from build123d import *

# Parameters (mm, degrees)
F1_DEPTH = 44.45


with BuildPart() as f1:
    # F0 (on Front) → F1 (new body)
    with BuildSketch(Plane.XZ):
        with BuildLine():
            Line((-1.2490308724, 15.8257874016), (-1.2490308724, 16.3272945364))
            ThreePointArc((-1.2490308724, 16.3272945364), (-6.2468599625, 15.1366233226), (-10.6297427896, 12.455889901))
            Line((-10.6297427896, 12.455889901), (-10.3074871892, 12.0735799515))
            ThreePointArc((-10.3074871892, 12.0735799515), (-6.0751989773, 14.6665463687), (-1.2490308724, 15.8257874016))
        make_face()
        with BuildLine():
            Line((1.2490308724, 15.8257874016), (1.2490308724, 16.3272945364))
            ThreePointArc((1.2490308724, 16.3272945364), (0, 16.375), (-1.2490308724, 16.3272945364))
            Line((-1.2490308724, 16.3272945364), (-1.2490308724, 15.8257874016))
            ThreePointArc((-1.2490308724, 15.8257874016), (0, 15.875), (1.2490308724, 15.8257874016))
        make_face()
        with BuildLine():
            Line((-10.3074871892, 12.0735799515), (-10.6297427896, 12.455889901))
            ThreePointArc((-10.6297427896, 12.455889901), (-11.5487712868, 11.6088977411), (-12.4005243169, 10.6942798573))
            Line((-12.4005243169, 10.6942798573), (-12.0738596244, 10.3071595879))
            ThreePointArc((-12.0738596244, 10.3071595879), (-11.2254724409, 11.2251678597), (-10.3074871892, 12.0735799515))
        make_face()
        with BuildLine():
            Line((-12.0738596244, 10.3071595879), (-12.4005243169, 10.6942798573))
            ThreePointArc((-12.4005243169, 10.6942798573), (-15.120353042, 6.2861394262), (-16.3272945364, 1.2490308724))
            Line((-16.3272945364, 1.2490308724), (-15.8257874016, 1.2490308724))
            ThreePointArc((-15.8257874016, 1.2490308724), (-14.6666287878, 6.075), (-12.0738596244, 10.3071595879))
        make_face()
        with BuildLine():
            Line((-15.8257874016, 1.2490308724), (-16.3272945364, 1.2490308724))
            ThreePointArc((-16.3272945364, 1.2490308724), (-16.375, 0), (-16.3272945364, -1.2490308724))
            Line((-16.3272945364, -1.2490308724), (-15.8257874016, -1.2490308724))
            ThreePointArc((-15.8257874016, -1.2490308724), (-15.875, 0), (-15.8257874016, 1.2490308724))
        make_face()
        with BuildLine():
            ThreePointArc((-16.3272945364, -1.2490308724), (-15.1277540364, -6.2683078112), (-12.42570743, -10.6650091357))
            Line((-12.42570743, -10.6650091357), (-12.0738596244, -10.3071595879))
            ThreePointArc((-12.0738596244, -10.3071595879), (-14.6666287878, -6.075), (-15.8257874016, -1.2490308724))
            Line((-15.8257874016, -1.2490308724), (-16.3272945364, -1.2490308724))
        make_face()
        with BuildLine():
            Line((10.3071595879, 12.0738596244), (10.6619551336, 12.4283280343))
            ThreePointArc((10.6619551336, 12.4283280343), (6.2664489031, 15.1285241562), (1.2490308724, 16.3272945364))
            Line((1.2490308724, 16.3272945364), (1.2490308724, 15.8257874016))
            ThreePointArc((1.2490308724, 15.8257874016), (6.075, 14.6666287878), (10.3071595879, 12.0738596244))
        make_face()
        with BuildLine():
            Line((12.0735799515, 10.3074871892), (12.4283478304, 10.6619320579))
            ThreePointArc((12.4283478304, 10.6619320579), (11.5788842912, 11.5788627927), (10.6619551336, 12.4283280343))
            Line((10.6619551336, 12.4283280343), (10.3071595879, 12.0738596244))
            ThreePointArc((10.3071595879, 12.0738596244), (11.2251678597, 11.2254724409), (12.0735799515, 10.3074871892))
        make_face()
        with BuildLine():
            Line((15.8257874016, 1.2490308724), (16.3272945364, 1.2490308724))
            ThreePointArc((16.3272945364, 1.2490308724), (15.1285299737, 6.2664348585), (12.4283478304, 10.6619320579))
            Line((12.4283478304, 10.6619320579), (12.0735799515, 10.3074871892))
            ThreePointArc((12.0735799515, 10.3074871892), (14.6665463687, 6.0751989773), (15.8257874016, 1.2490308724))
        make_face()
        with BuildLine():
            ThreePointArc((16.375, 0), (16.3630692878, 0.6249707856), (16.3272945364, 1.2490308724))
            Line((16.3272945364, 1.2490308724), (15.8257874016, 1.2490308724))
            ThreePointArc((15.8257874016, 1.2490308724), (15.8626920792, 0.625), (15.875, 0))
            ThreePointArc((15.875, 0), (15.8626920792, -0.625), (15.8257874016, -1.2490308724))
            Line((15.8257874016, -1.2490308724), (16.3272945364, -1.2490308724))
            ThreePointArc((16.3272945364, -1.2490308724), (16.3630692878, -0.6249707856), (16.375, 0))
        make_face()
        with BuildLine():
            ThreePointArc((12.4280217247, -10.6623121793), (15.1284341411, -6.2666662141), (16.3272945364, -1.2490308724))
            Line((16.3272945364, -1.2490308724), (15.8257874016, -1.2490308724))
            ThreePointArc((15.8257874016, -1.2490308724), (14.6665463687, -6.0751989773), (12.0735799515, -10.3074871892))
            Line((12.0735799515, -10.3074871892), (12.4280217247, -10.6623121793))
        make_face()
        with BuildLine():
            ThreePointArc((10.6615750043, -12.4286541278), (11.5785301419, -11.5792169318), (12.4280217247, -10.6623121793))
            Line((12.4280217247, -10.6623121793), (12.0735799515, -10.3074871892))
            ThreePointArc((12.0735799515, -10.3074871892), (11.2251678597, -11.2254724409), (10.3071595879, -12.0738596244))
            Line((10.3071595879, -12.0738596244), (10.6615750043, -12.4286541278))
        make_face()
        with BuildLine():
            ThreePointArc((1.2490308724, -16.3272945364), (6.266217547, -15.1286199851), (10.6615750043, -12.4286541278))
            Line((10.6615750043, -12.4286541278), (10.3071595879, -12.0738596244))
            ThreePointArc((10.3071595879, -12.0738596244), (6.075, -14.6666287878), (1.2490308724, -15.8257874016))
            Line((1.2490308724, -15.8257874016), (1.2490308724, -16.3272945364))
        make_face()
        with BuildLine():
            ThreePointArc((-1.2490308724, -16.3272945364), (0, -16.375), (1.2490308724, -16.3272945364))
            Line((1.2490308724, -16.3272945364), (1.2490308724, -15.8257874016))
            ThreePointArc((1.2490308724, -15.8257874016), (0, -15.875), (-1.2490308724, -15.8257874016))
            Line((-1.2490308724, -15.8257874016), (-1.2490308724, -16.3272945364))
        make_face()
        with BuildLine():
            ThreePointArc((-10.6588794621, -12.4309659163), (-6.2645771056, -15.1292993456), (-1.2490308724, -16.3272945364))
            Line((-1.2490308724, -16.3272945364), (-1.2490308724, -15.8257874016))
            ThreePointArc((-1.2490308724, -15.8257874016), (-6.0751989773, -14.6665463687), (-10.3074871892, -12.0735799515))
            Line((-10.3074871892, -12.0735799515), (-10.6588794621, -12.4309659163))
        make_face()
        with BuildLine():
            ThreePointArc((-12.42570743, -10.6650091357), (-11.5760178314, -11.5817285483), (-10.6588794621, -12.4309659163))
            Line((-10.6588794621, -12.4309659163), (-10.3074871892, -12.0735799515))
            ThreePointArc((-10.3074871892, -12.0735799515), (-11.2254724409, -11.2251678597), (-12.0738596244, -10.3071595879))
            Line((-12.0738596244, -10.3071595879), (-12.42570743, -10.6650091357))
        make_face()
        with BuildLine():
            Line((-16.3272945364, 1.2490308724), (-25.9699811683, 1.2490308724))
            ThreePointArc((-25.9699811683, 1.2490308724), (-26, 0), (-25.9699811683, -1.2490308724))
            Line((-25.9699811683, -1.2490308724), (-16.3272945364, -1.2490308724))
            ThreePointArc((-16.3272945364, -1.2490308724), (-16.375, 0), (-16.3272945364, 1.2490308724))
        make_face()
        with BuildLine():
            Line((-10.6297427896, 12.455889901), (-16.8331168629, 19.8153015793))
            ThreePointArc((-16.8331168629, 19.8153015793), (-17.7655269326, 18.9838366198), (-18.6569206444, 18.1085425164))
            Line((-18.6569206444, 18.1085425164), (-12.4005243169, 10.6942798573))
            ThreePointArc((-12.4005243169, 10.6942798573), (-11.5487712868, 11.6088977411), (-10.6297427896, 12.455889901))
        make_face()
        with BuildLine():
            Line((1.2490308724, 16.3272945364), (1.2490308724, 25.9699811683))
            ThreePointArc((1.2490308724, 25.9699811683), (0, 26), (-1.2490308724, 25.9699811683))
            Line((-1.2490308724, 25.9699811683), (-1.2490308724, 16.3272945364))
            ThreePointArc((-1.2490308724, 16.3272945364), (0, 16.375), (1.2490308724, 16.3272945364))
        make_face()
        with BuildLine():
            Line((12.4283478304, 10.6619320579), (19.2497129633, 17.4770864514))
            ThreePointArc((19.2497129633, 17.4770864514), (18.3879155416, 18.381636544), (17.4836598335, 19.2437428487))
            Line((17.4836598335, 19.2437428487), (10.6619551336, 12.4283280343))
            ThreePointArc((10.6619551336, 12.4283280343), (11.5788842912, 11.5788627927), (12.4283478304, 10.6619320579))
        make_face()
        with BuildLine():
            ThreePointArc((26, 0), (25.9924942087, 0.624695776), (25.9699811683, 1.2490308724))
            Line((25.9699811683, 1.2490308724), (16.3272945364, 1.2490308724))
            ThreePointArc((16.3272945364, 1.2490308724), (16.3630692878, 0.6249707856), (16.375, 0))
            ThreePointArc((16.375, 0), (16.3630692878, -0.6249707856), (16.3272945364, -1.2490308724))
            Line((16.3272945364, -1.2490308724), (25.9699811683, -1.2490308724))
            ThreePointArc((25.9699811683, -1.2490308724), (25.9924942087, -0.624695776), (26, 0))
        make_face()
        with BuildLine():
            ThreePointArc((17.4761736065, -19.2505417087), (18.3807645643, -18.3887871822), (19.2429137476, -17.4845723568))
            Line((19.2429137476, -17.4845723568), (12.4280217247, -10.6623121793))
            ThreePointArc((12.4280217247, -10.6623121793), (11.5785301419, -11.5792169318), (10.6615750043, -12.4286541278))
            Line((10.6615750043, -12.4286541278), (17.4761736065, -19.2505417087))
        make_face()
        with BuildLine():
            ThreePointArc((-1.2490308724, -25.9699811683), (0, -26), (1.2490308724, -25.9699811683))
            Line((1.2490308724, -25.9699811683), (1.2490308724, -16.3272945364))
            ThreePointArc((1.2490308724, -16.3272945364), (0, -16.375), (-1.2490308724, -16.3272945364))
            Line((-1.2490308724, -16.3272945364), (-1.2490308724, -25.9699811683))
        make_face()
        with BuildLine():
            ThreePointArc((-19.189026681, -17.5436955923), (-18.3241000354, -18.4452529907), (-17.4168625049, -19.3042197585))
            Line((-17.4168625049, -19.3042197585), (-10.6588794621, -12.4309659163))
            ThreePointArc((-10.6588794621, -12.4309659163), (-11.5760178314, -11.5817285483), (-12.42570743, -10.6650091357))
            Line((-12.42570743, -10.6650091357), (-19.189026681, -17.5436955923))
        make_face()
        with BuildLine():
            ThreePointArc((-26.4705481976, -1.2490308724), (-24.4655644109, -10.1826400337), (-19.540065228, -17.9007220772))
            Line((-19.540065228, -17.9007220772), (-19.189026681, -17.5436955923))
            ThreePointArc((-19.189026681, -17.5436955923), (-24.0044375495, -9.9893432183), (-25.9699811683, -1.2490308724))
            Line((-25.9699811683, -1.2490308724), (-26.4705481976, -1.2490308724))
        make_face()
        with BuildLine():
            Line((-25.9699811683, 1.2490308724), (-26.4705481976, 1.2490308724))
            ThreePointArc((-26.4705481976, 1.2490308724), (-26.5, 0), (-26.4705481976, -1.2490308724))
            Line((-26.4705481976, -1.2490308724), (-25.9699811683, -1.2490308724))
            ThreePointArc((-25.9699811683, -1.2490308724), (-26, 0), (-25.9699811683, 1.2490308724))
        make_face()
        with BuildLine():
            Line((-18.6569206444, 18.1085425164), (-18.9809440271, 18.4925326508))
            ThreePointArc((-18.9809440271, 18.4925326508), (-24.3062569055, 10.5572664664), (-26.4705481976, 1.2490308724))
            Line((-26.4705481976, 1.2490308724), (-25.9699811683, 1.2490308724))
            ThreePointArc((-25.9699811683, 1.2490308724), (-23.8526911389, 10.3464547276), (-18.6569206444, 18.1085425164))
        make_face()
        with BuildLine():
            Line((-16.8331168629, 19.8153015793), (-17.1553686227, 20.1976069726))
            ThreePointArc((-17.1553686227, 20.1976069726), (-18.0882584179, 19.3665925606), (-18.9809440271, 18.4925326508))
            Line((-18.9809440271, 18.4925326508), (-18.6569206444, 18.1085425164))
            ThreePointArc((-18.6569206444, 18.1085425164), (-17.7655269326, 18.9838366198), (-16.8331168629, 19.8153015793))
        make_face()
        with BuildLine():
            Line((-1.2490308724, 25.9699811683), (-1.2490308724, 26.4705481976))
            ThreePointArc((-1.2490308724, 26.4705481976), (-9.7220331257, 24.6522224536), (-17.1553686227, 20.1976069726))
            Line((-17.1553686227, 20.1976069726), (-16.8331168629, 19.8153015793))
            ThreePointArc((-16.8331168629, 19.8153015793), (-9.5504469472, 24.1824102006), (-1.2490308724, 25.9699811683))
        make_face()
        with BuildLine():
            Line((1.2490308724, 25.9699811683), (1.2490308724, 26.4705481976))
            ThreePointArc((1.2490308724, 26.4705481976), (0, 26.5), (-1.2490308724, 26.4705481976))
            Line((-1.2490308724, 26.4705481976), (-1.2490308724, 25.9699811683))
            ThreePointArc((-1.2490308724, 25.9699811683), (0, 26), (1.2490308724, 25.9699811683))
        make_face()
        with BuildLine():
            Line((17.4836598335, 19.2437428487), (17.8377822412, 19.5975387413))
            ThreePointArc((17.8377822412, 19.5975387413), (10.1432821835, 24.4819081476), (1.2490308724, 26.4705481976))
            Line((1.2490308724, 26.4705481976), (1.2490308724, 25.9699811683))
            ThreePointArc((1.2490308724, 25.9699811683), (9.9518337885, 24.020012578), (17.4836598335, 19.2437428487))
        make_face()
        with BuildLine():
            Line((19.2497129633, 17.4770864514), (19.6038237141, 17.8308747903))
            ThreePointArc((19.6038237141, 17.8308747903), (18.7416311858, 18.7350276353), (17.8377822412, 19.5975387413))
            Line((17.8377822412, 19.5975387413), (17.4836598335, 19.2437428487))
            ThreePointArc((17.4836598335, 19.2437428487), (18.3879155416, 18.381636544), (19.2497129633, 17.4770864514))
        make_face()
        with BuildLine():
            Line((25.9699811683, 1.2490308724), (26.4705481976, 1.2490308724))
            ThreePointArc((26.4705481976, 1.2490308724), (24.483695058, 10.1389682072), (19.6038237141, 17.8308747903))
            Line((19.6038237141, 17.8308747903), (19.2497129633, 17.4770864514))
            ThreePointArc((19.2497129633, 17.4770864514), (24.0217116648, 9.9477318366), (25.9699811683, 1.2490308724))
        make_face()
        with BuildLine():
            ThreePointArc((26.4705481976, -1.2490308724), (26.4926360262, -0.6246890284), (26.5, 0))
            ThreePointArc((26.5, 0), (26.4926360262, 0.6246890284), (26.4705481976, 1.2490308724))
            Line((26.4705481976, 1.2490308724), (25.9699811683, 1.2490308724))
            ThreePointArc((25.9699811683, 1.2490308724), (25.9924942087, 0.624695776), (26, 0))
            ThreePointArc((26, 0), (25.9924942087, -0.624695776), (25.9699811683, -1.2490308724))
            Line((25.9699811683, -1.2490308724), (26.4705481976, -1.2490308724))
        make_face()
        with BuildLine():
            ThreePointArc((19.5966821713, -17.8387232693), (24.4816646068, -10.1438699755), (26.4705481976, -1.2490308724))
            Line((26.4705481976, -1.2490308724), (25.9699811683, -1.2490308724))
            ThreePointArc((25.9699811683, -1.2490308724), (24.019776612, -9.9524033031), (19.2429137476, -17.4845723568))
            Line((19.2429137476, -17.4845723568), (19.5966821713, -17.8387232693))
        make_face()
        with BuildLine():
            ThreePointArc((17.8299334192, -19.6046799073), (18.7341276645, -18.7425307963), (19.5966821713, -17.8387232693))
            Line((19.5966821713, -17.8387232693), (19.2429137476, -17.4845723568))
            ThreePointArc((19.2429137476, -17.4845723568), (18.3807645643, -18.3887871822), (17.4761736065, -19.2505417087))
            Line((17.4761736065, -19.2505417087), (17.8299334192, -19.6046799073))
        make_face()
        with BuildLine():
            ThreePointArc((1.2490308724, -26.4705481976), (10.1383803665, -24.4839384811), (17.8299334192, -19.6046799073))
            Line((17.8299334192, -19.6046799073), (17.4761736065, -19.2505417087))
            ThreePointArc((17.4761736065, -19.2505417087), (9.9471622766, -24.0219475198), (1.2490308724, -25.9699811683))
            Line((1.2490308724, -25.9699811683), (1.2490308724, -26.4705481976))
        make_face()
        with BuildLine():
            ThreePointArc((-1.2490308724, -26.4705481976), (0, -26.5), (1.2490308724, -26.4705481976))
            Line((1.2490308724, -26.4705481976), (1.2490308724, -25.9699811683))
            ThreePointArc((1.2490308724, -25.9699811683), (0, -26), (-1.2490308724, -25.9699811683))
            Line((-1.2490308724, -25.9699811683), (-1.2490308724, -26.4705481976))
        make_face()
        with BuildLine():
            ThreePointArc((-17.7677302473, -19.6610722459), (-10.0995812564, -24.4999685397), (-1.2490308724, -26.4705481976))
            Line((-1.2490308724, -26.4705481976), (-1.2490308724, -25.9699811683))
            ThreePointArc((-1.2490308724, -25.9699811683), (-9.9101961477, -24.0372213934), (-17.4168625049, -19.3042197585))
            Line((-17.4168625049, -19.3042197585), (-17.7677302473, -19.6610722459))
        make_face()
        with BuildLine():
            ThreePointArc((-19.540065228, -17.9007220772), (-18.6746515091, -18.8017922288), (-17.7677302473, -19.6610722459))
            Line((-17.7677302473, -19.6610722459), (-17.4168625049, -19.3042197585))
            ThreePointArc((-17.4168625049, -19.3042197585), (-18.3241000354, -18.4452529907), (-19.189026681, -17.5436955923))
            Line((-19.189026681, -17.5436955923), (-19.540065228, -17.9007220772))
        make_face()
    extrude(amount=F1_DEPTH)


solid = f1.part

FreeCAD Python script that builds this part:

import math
import FreeCAD as App
import Part
import Sketcher
Q = App.Units.Quantity

doc = App.newDocument("Part")
body = doc.addObject("PartDesign::Body", "Body")

# Sketch on XZ plane
sketch1 = body.newObject("Sketcher::SketchObject", "Sketch")
sketch1.AttachmentSupport = (doc.getObject("XZ_Plane"), [""])
sketch1.MapMode = "FlatFace"
sketch1.addGeometry(Part.ArcOfCircle(Part.Circle(App.Vector(0, 0, 0), App.Vector(0, 0, 1), 26.5), math.radians(-177.298463), math.radians(-137.507092)), False)
sketch1.addGeometry(Part.ArcOfCircle(Part.Circle(App.Vector(0, 0, 0), App.Vector(0, 0, 1), 26.5), math.radians(-137.507092), math.radians(-132.104152)), False)
sketch1.addGeometry(Part.ArcOfCircle(Part.Circle(App.Vector(0, 0, 0), App.Vector(0, 0, 1), 26.5), math.radians(-132.104152), math.radians(-92.701537)), False)
sketch1.addGeometry(Part.ArcOfCircle(Part.Circle(App.Vector(0, 0, 0), App.Vector(0, 0, 1), 26.5), math.radians(-92.701537), math.radians(-87.298463)), False)
sketch1.addGeometry(Part.ArcOfCircle(Part.Circle(App.Vector(0, 0, 0), App.Vector(0, 0, 1), 26.5), math.radians(-87.298463), math.radians(-47.714317)), False)
sketch1.addGeometry(Part.ArcOfCircle(Part.Circle(App.Vector(0, 0, 0), App.Vector(0, 0, 1), 26.5), math.radians(-47.714317), math.radians(-42.311377)), False)
sketch1.addGeometry(Part.ArcOfCircle(Part.Circle(App.Vector(0, 0, 0), App.Vector(0, 0, 1), 26.5), math.radians(-42.311377), math.radians(-2.701537)), False)
sketch1.addGeometry(Part.ArcOfCircle(Part.Circle(App.Vector(0, 0, 0), App.Vector(0, 0, 1), 26.5), math.radians(-2.701537), math.radians(0)), False)
sketch1.addGeometry(Part.ArcOfCircle(Part.Circle(App.Vector(0, 0, 0), App.Vector(0, 0, 1), 26.5), math.radians(0), math.radians(2.701537)), False)
sketch1.addGeometry(Part.ArcOfCircle(Part.Circle(App.Vector(0, 0, 0), App.Vector(0, 0, 1), 26.5), math.radians(2.701537), math.radians(42.288434)), False)
sketch1.addGeometry(Part.ArcOfCircle(Part.Circle(App.Vector(0, 0, 0), App.Vector(0, 0, 1), 26.5), math.radians(42.288434), math.radians(47.691374)), False)
sketch1.addGeometry(Part.ArcOfCircle(Part.Circle(App.Vector(0, 0, 0), App.Vector(0, 0, 1), 26.5), math.radians(47.691374), math.radians(87.298463)), False)
sketch1.addGeometry(Part.ArcOfCircle(Part.Circle(App.Vector(0, 0, 0), App.Vector(0, 0, 1), 26.5), math.radians(87.298463), math.radians(92.701537)), False)
sketch1.addGeometry(Part.ArcOfCircle(Part.Circle(App.Vector(0, 0, 0), App.Vector(0, 0, 1), 26.5), math.radians(92.701537), math.radians(130.343784)), False)
sketch1.addGeometry(Part.ArcOfCircle(Part.Circle(App.Vector(0, 0, 0), App.Vector(0, 0, 1), 26.5), math.radians(130.343784), math.radians(177.298463)), False)
sketch1.addGeometry(Part.ArcOfCircle(Part.Circle(App.Vector(0, 0, 0), App.Vector(0, 0, 1), 26.5), math.radians(177.298463), math.radians(182.701537)), False)
sketch1.addGeometry(Part.ArcOfCircle(Part.Circle(App.Vector(0, 0, 0), App.Vector(0, 0, 1), 26), math.radians(-132.057752), math.radians(-92.753529)), False)
sketch1.addGeometry(Part.LineSegment(App.Vector(-17.416863, -19.30422, 0), App.Vector(-10.658879, -12.430966, 0)), False)
sketch1.addGeometry(Part.ArcOfCircle(Part.Circle(App.Vector(0, 0, 0), App.Vector(0, 0, 1), 16.375), math.radians(-130.611299), math.radians(-94.374582)), False)
sketch1.addGeometry(Part.LineSegment(App.Vector(-1.249031, -16.327295, 0), App.Vector(-1.249031, -25.969981, 0)), False)
sketch1.addGeometry(Part.LineSegment(App.Vector(-12.425707, -10.665009, 0), App.Vector(-19.189027, -17.543696, 0)), False)
sketch1.addGeometry(Part.ArcOfCircle(Part.Circle(App.Vector(0, 0, 0), App.Vector(0, 0, 1), 26), math.radians(-177.246471), math.radians(-137.564677)), False)
sketch1.addGeometry(Part.LineSegment(App.Vector(-25.969981, -1.249031, 0), App.Vector(-16.327295, -1.249031, 0)), False)
sketch1.addGeometry(Part.ArcOfCircle(Part.Circle(App.Vector(0, 0, 0), App.Vector(0, 0, 1), 16.375), math.radians(-175.625418), math.radians(-139.360443)), False)
sketch1.addGeometry(Part.ArcOfCircle(Part.Circle(App.Vector(0, 0, 0), App.Vector(0, 0, 1), 26), math.radians(-87.246471), math.radians(-47.765965)), False)
sketch1.addGeometry(Part.LineSegment(App.Vector(1.249031, -25.969981, 0), App.Vector(1.249031, -16.327295, 0)), False)
sketch1.addGeometry(Part.ArcOfCircle(Part.Circle(App.Vector(0, 0, 0), App.Vector(0, 0, 1), 16.375), math.radians(-85.625418), math.radians(-49.376276)), False)
sketch1.addGeometry(Part.LineSegment(App.Vector(10.661575, -12.428654, 0), App.Vector(17.476174, -19.250542, 0)), False)
sketch1.addGeometry(Part.ArcOfCircle(Part.Circle(App.Vector(0, 0, 0), App.Vector(0, 0, 1), 26), math.radians(-42.259037), math.radians(-2.753529)), False)
sketch1.addGeometry(Part.LineSegment(App.Vector(19.242914, -17.484572, 0), App.Vector(12.428022, -10.662312, 0)), False)
sketch1.addGeometry(Part.ArcOfCircle(Part.Circle(App.Vector(0, 0, 0), App.Vector(0, 0, 1), 16.375), math.radians(-40.627123), math.radians(-4.374582)), False)
sketch1.addGeometry(Part.LineSegment(App.Vector(16.327295, -1.249031, 0), App.Vector(25.969981, -1.249031, 0)), False)
sketch1.addGeometry(Part.ArcOfCircle(Part.Circle(App.Vector(0, 0, 0), App.Vector(0, 0, 1), 26), math.radians(135.854536), math.radians(177.246471)), False)
sketch1.addGeometry(Part.LineSegment(App.Vector(-18.656921, 18.108543, 0), App.Vector(-12.400524, 10.69428, 0)), False)
sketch1.addGeometry(Part.ArcOfCircle(Part.Circle(App.Vector(0, 0, 0), App.Vector(0, 0, 1), 16.375), math.radians(139.225337), math.radians(175.625418)), False)
sketch1.addGeometry(Part.LineSegment(App.Vector(-16.327295, 1.249031, 0), App.Vector(-25.969981, 1.249031, 0)), False)
sketch1.addGeometry(Part.ArcOfCircle(Part.Circle(App.Vector(0, 0, 0), App.Vector(0, 0, 1), 26), math.radians(92.753529), math.radians(130.347931)), False)
sketch1.addGeometry(Part.LineSegment(App.Vector(-1.249031, 25.969981, 0), App.Vector(-1.249031, 16.327295, 0)), False)
sketch1.addGeometry(Part.ArcOfCircle(Part.Circle(App.Vector(0, 0, 0), App.Vector(0, 0, 1), 16.375), math.radians(94.374582), math.radians(130.477139)), False)
sketch1.addGeometry(Part.LineSegment(App.Vector(-10.629743, 12.45589, 0), App.Vector(-16.833117, 19.815302, 0)), False)
sketch1.addGeometry(Part.ArcOfCircle(Part.Circle(App.Vector(0, 0, 0), App.Vector(0, 0, 1), 15.875), math.radians(-175.487355), math.radians(-139.513422)), False)
sketch1.addGeometry(Part.ArcOfCircle(Part.Circle(App.Vector(0, 0, 0), App.Vector(0, 0, 1), 15.875), math.radians(175.487355), math.radians(184.512645)), False)
sketch1.addGeometry(Part.ArcOfCircle(Part.Circle(App.Vector(0, 0, 0), App.Vector(0, 0, 1), 15.875), math.radians(139.513422), math.radians(175.487355)), False)
sketch1.addGeometry(Part.ArcOfCircle(Part.Circle(App.Vector(0, 0, 0), App.Vector(0, 0, 1), 15.875), math.radians(130.488132), math.radians(139.513422)), False)
sketch1.addGeometry(Part.ArcOfCircle(Part.Circle(App.Vector(0, 0, 0), App.Vector(0, 0, 1), 15.875), math.radians(94.512645), math.radians(130.488132)), False)
sketch1.addGeometry(Part.ArcOfCircle(Part.Circle(App.Vector(0, 0, 0), App.Vector(0, 0, 1), 15.875), math.radians(85.487355), math.radians(94.512645)), False)
sketch1.addGeometry(Part.ArcOfCircle(Part.Circle(App.Vector(0, 0, 0), App.Vector(0, 0, 1), 15.875), math.radians(49.513422), math.radians(85.487355)), False)
sketch1.addGeometry(Part.ArcOfCircle(Part.Circle(App.Vector(0, 0, 0), App.Vector(0, 0, 1), 15.875), math.radians(40.488132), math.radians(49.513422)), False)
sketch1.addGeometry(Part.ArcOfCircle(Part.Circle(App.Vector(0, 0, 0), App.Vector(0, 0, 1), 15.875), math.radians(4.512645), math.radians(40.488132)), False)
sketch1.addGeometry(Part.ArcOfCircle(Part.Circle(App.Vector(0, 0, 0), App.Vector(0, 0, 1), 15.875), math.radians(0), math.radians(4.512645)), False)
sketch1.addGeometry(Part.ArcOfCircle(Part.Circle(App.Vector(0, 0, 0), App.Vector(0, 0, 1), 15.875), math.radians(-4.512645), math.radians(0)), False)
sketch1.addGeometry(Part.ArcOfCircle(Part.Circle(App.Vector(0, 0, 0), App.Vector(0, 0, 1), 15.875), math.radians(-40.488132), math.radians(-4.512645)), False)
sketch1.addGeometry(Part.ArcOfCircle(Part.Circle(App.Vector(0, 0, 0), App.Vector(0, 0, 1), 15.875), math.radians(-49.513422), math.radians(-40.488132)), False)
sketch1.addGeometry(Part.ArcOfCircle(Part.Circle(App.Vector(0, 0, 0), App.Vector(0, 0, 1), 15.875), math.radians(-85.487355), math.radians(-49.513422)), False)
sketch1.addGeometry(Part.ArcOfCircle(Part.Circle(App.Vector(0, 0, 0), App.Vector(0, 0, 1), 15.875), math.radians(-94.512645), math.radians(-85.487355)), False)
sketch1.addGeometry(Part.ArcOfCircle(Part.Circle(App.Vector(0, 0, 0), App.Vector(0, 0, 1), 15.875), math.radians(-130.488132), math.radians(-94.512645)), False)
sketch1.addGeometry(Part.ArcOfCircle(Part.Circle(App.Vector(0, 0, 0), App.Vector(0, 0, 1), 15.875), math.radians(-139.513422), math.radians(-130.488132)), False)
sketch1.addGeometry(Part.ArcOfCircle(Part.Circle(App.Vector(0, 0, 0), App.Vector(0, 0, 1), 26), math.radians(2.753529), math.radians(42.236752)), False)
sketch1.addGeometry(Part.LineSegment(App.Vector(25.969981, 1.249031, 0), App.Vector(16.327295, 1.249031, 0)), False)
sketch1.addGeometry(Part.ArcOfCircle(Part.Circle(App.Vector(0, 0, 0), App.Vector(0, 0, 1), 16.375), math.radians(4.374582), math.radians(40.62537)), False)
sketch1.addGeometry(Part.LineSegment(App.Vector(12.428348, 10.661932, 0), App.Vector(19.249713, 17.477086, 0)), False)
sketch1.addGeometry(Part.ArcOfCircle(Part.Circle(App.Vector(0, 0, 0), App.Vector(0, 0, 1), 26), math.radians(47.74368), math.radians(87.246471)), False)
sketch1.addGeometry(Part.LineSegment(App.Vector(17.48366, 19.243743, 0), App.Vector(10.661955, 12.428328, 0)), False)
sketch1.addGeometry(Part.ArcOfCircle(Part.Circle(App.Vector(0, 0, 0), App.Vector(0, 0, 1), 16.375), math.radians(49.374523), math.radians(85.625418)), False)
sketch1.addGeometry(Part.LineSegment(App.Vector(1.249031, 16.327295, 0), App.Vector(1.249031, 25.969981, 0)), False)
sketch1.addConstraint(Sketcher.Constraint("Coincident", 0, 2, 1, 1))
sketch1.addConstraint(Sketcher.Constraint("Coincident", 1, 2, 2, 1))
sketch1.addConstraint(Sketcher.Constraint("Coincident", 2, 2, 3, 1))
sketch1.addConstraint(Sketcher.Constraint("Coincident", 3, 2, 4, 1))
sketch1.addConstraint(Sketcher.Constraint("Coincident", 4, 2, 5, 1))
sketch1.addConstraint(Sketcher.Constraint("Coincident", 5, 2, 6, 1))
sketch1.addConstraint(Sketcher.Constraint("Coincident", 6, 2, 7, 1))
sketch1.addConstraint(Sketcher.Constraint("Coincident", 7, 2, 8, 1))
sketch1.addConstraint(Sketcher.Constraint("Coincident", 8, 2, 9, 1))
sketch1.addConstraint(Sketcher.Constraint("Coincident", 9, 2, 10, 1))
sketch1.addConstraint(Sketcher.Constraint("Coincident", 10, 2, 11, 1))
sketch1.addConstraint(Sketcher.Constraint("Coincident", 11, 2, 12, 1))
sketch1.addConstraint(Sketcher.Constraint("Coincident", 12, 2, 13, 1))
sketch1.addConstraint(Sketcher.Constraint("Coincident", 13, 2, 14, 1))
sketch1.addConstraint(Sketcher.Constraint("Coincident", 14, 2, 15, 1))
sketch1.addConstraint(Sketcher.Constraint("Coincident", 15, 2, 0, 1))
sketch1.addConstraint(Sketcher.Constraint("Coincident", 16, 1, 17, 1))
sketch1.addConstraint(Sketcher.Constraint("Coincident", 17, 2, 18, 1))
sketch1.addConstraint(Sketcher.Constraint("Coincident", 18, 2, 19, 1))
sketch1.addConstraint(Sketcher.Constraint("Coincident", 19, 2, 16, 2))
sketch1.addConstraint(Sketcher.Constraint("Coincident", 20, 2, 21, 2))
sketch1.addConstraint(Sketcher.Constraint("Coincident", 21, 1, 22, 1))
sketch1.addConstraint(Sketcher.Constraint("Coincident", 22, 2, 23, 1))
sketch1.addConstraint(Sketcher.Constraint("Coincident", 23, 2, 20, 1))
sketch1.addConstraint(Sketcher.Constraint("Coincident", 24, 1, 25, 1))
sketch1.addConstraint(Sketcher.Constraint("Coincident", 25, 2, 26, 1))
sketch1.addConstraint(Sketcher.Constraint("Coincident", 26, 2, 27, 1))
sketch1.addConstraint(Sketcher.Constraint("Coincident", 27, 2, 24, 2))
sketch1.addConstraint(Sketcher.Constraint("Coincident", 28, 1, 29, 1))
sketch1.addConstraint(Sketcher.Constraint("Coincident", 29, 2, 30, 1))
sketch1.addConstraint(Sketcher.Constraint("Coincident", 30, 2, 31, 1))
sketch1.addConstraint(Sketcher.Constraint("Coincident", 31, 2, 28, 2))
sketch1.addConstraint(Sketcher.Constraint("Coincident", 32, 1, 33, 1))
sketch1.addConstraint(Sketcher.Constraint("Coincident", 33, 2, 34, 1))
sketch1.addConstraint(Sketcher.Constraint("Coincident", 34, 2, 35, 1))
sketch1.addConstraint(Sketcher.Constraint("Coincident", 35, 2, 32, 2))
sketch1.addConstraint(Sketcher.Constraint("Coincident", 36, 1, 37, 1))
sketch1.addConstraint(Sketcher.Constraint("Coincident", 37, 2, 38, 1))
sketch1.addConstraint(Sketcher.Constraint("Coincident", 38, 2, 39, 1))
sketch1.addConstraint(Sketcher.Constraint("Coincident", 39, 2, 36, 2))
sketch1.addConstraint(Sketcher.Constraint("Coincident", 40, 1, 41, 2))
sketch1.addConstraint(Sketcher.Constraint("Coincident", 41, 1, 42, 2))
sketch1.addConstraint(Sketcher.Constraint("Coincident", 42, 1, 43, 2))
sketch1.addConstraint(Sketcher.Constraint("Coincident", 43, 1, 44, 2))
sketch1.addConstraint(Sketcher.Constraint("Coincident", 44, 1, 45, 2))
sketch1.addConstraint(Sketcher.Constraint("Coincident", 45, 1, 46, 2))
sketch1.addConstraint(Sketcher.Constraint("Coincident", 46, 1, 47, 2))
sketch1.addConstraint(Sketcher.Constraint("Coincident", 47, 1, 48, 2))
sketch1.addConstraint(Sketcher.Constraint("Coincident", 48, 1, 49, 2))
sketch1.addConstraint(Sketcher.Constraint("Coincident", 49, 1, 50, 2))
sketch1.addConstraint(Sketcher.Constraint("Coincident", 50, 1, 51, 2))
sketch1.addConstraint(Sketcher.Constraint("Coincident", 51, 1, 52, 2))
sketch1.addConstraint(Sketcher.Constraint("Coincident", 52, 1, 53, 2))
sketch1.addConstraint(Sketcher.Constraint("Coincident", 53, 1, 54, 2))
sketch1.addConstraint(Sketcher.Constraint("Coincident", 54, 1, 55, 2))
sketch1.addConstraint(Sketcher.Constraint("Coincident", 55, 1, 56, 2))
sketch1.addConstraint(Sketcher.Constraint("Coincident", 56, 1, 40, 2))
sketch1.addConstraint(Sketcher.Constraint("Coincident", 57, 1, 58, 1))
sketch1.addConstraint(Sketcher.Constraint("Coincident", 58, 2, 59, 1))
sketch1.addConstraint(Sketcher.Constraint("Coincident", 59, 2, 60, 1))
sketch1.addConstraint(Sketcher.Constraint("Coincident", 60, 2, 57, 2))
sketch1.addConstraint(Sketcher.Constraint("Coincident", 61, 1, 62, 1))
sketch1.addConstraint(Sketcher.Constraint("Coincident", 62, 2, 63, 1))
sketch1.addConstraint(Sketcher.Constraint("Coincident", 63, 2, 64, 1))
sketch1.addConstraint(Sketcher.Constraint("Coincident", 64, 2, 61, 2))
sketch1.addConstraint(Sketcher.Constraint("Vertical", 19))
sketch1.addConstraint(Sketcher.Constraint("Horizontal", 22))
sketch1.addConstraint(Sketcher.Constraint("Vertical", 25))
sketch1.addConstraint(Sketcher.Constraint("Horizontal", 31))
sketch1.addConstraint(Sketcher.Constraint("Horizontal", 35))
sketch1.addConstraint(Sketcher.Constraint("Vertical", 37))
sketch1.addConstraint(Sketcher.Constraint("Horizontal", 58))
sketch1.addConstraint(Sketcher.Constraint("Vertical", 64))
sketch1.addConstraint(Sketcher.Constraint("Coincident", 0, 3, -1, 1))
sketch1.addConstraint(Sketcher.Constraint("Coincident", 1, 3, -1, 1))
sketch1.addConstraint(Sketcher.Constraint("Coincident", 2, 3, -1, 1))
sketch1.addConstraint(Sketcher.Constraint("Coincident", 3, 3, -1, 1))
sketch1.addConstraint(Sketcher.Constraint("Coincident", 4, 3, -1, 1))
sketch1.addConstraint(Sketcher.Constraint("Coincident", 5, 3, -1, 1))
sketch1.addConstraint(Sketcher.Constraint("Coincident", 6, 3, -1, 1))
sketch1.addConstraint(Sketcher.Constraint("Coincident", 7, 3, -1, 1))
sketch1.addConstraint(Sketcher.Constraint("Coincident", 8, 3, -1, 1))
sketch1.addConstraint(Sketcher.Constraint("Coincident", 9, 3, -1, 1))
sketch1.addConstraint(Sketcher.Constraint("Coincident", 10, 3, -1, 1))
sketch1.addConstraint(Sketcher.Constraint("Coincident", 11, 3, -1, 1))
sketch1.addConstraint(Sketcher.Constraint("Coincident", 12, 3, -1, 1))
sketch1.addConstraint(Sketcher.Constraint("Coincident", 13, 3, -1, 1))
sketch1.addConstraint(Sketcher.Constraint("Coincident", 14, 3, -1, 1))
sketch1.addConstraint(Sketcher.Constraint("Coincident", 16, 3, -1, 1))
sketch1.addConstraint(Sketcher.Constraint("Coincident", 18, 3, -1, 1))
sketch1.addConstraint(Sketcher.Constraint("Coincident", 21, 3, -1, 1))
sketch1.addConstraint(Sketcher.Constraint("Coincident", 23, 3, -1, 1))
sketch1.addConstraint(Sketcher.Constraint("Coincident", 24, 3, -1, 1))
sketch1.addConstraint(Sketcher.Constraint("Coincident", 26, 3, -1, 1))
sketch1.addConstraint(Sketcher.Constraint("Coincident", 28, 3, -1, 1))
sketch1.addConstraint(Sketcher.Constraint("Coincident", 30, 3, -1, 1))
sketch1.addConstraint(Sketcher.Constraint("Coincident", 32, 3, -1, 1))
sketch1.addConstraint(Sketcher.Constraint("Coincident", 34, 3, -1, 1))
sketch1.addConstraint(Sketcher.Constraint("Coincident", 36, 3, -1, 1))
sketch1.addConstraint(Sketcher.Constraint("Coincident", 38, 3, -1, 1))
sketch1.addConstraint(Sketcher.Constraint("Coincident", 40, 3, -1, 1))
sketch1.addConstraint(Sketcher.Constraint("Coincident", 41, 3, -1, 1))
sketch1.addConstraint(Sketcher.Constraint("Coincident", 42, 3, -1, 1))
sketch1.addConstraint(Sketcher.Constraint("Coincident", 43, 3, -1, 1))
sketch1.addConstraint(Sketcher.Constraint("Coincident", 44, 3, -1, 1))
sketch1.addConstraint(Sketcher.Constraint("Coincident", 45, 3, -1, 1))
sketch1.addConstraint(Sketcher.Constraint("Coincident", 46, 3, -1, 1))
sketch1.addConstraint(Sketcher.Constraint("Coincident", 47, 3, -1, 1))
sketch1.addConstraint(Sketcher.Constraint("Coincident", 48, 3, -1, 1))
sketch1.addConstraint(Sketcher.Constraint("Coincident", 49, 3, -1, 1))
sketch1.addConstraint(Sketcher.Constraint("Coincident", 50, 3, -1, 1))
sketch1.addConstraint(Sketcher.Constraint("Coincident", 51, 3, -1, 1))
sketch1.addConstraint(Sketcher.Constraint("Coincident", 52, 3, -1, 1))
sketch1.addConstraint(Sketcher.Constraint("Coincident", 53, 3, -1, 1))
sketch1.addConstraint(Sketcher.Constraint("Coincident", 54, 3, -1, 1))
sketch1.addConstraint(Sketcher.Constraint("Coincident", 55, 3, -1, 1))
sketch1.addConstraint(Sketcher.Constraint("Coincident", 57, 3, -1, 1))
sketch1.addConstraint(Sketcher.Constraint("Coincident", 59, 3, -1, 1))
sketch1.addConstraint(Sketcher.Constraint("Coincident", 61, 3, -1, 1))
sketch1.addConstraint(Sketcher.Constraint("Coincident", 63, 3, -1, 1))
sketch1.addConstraint(Sketcher.Constraint("PointOnObject", 7, 2, -1))
sketch1.addConstraint(Sketcher.Constraint("PointOnObject", 49, 1, -1))
sketch1.addConstraint(Sketcher.Constraint("Radius", 16, Q("26 mm")))
sketch1.addConstraint(Sketcher.Constraint("Radius", 21, Q("26 mm")))
sketch1.addConstraint(Sketcher.Constraint("Radius", 24, Q("26 mm")))
sketch1.addConstraint(Sketcher.Constraint("Radius", 28, Q("26 mm")))
sketch1.addConstraint(Sketcher.Constraint("Radius", 32, Q("26 mm")))
sketch1.addConstraint(Sketcher.Constraint("Radius", 36, Q("26 mm")))
sketch1.addConstraint(Sketcher.Constraint("Radius", 57, Q("26 mm")))
sketch1.addConstraint(Sketcher.Constraint("Radius", 61, Q("26 mm")))
sketch1.addConstraint(Sketcher.Constraint("Radius", 0, Q("26.5 mm")))
sketch1.addConstraint(Sketcher.Constraint("Radius", 15, Q("26.5 mm")))
sketch1.addConstraint(Sketcher.Constraint("Radius", 18, Q("16.375 mm")))
sketch1.addConstraint(Sketcher.Constraint("Radius", 23, Q("16.375 mm")))
sketch1.addConstraint(Sketcher.Constraint("Radius", 26, Q("16.375 mm")))
sketch1.addConstraint(Sketcher.Constraint("Radius", 30, Q("16.375 mm")))
sketch1.addConstraint(Sketcher.Constraint("Radius", 34, Q("16.375 mm")))
sketch1.addConstraint(Sketcher.Constraint("Radius", 38, Q("16.375 mm")))
sketch1.addConstraint(Sketcher.Constraint("Radius", 40, Q("15.875 mm")))
sketch1.addConstraint(Sketcher.Constraint("Radius", 56, Q("15.875 mm")))
sketch1.addConstraint(Sketcher.Constraint("Radius", 59, Q("16.375 mm")))
sketch1.addConstraint(Sketcher.Constraint("Radius", 63, Q("16.375 mm")))
sketch1.addConstraint(Sketcher.Constraint("Distance", 20, Q("9.6467 mm")))
sketch1.addConstraint(Sketcher.Constraint("Distance", 62, Q("9.642901 mm")))
sketch1.addConstraint(Sketcher.Constraint("DistanceY", -1, 1, 39, 2, Q("19.815302 mm")))
sketch1.addConstraint(Sketcher.Constraint("DistanceX", 22, 1, 22, 2, Q("9.642687 mm")))
sketch1.addConstraint(Sketcher.Constraint("DistanceX", 31, 1, 31, 2, Q("9.642687 mm")))
sketch1.addConstraint(Sketcher.Constraint("DistanceX", 35, 2, 35, 1, Q("9.642687 mm")))
sketch1.addConstraint(Sketcher.Constraint("DistanceX", 58, 2, 58, 1, Q("9.642687 mm")))
sketch1.addConstraint(Sketcher.Constraint("DistanceY", 19, 2, 19, 1, Q("9.642687 mm")))
sketch1.addConstraint(Sketcher.Constraint("DistanceY", 25, 1, 25, 2, Q("9.642687 mm")))
sketch1.addConstraint(Sketcher.Constraint("DistanceY", 37, 2, 37, 1, Q("9.642687 mm")))
sketch1.addConstraint(Sketcher.Constraint("DistanceY", 64, 1, 64, 2, Q("9.642687 mm")))
sketch1.addConstraint(Sketcher.Constraint("DistanceX", 1, 2, -1, 1, Q("17.76773 mm")))
sketch1.addConstraint(Sketcher.Constraint("DistanceX", 2, 2, -1, 1, Q("1.249031 mm")))
sketch1.addConstraint(Sketcher.Constraint("DistanceX", -1, 1, 3, 2, Q("1.249031 mm")))
sketch1.addConstraint(Sketcher.Constraint("DistanceY", 4, 2, -1, 1, Q("19.60468 mm")))
sketch1.addConstraint(Sketcher.Constraint("DistanceX", -1, 1, 6, 2, Q("26.470548 mm")))
sketch1.addConstraint(Sketcher.Constraint("DistanceX", -1, 1, 8, 2, Q("26.470548 mm")))
sketch1.addConstraint(Sketcher.Constraint("DistanceY", -1, 1, 10, 2, Q("19.597539 mm")))
sketch1.addConstraint(Sketcher.Constraint("DistanceX", -1, 1, 11, 2, Q("1.249031 mm")))
sketch1.addConstraint(Sketcher.Constraint("DistanceX", 12, 2, -1, 1, Q("1.249031 mm")))
sketch1.addConstraint(Sketcher.Constraint("DistanceX", 13, 2, -1, 1, Q("17.155369 mm")))
sketch1.addConstraint(Sketcher.Constraint("DistanceX", 14, 2, -1, 1, Q("26.470548 mm")))
sketch1.addConstraint(Sketcher.Constraint("DistanceX", 15, 2, -1, 1, Q("26.470548 mm")))
sketch1.addConstraint(Sketcher.Constraint("DistanceY", 16, 1, -1, 1, Q("19.30422 mm")))
sketch1.addConstraint(Sketcher.Constraint("DistanceX", 17, 2, -1, 1, Q("10.658879 mm")))
sketch1.addConstraint(Sketcher.Constraint("DistanceY", 23, 2, -1, 1, Q("10.665009 mm")))
sketch1.addConstraint(Sketcher.Constraint("DistanceY", 27, 2, -1, 1, Q("19.250542 mm")))
sketch1.addConstraint(Sketcher.Constraint("DistanceX", -1, 1, 29, 2, Q("12.428022 mm")))
sketch1.addConstraint(Sketcher.Constraint("DistanceX", 32, 1, -1, 1, Q("18.656921 mm")))
sketch1.addConstraint(Sketcher.Constraint("DistanceY", -1, 1, 33, 2, Q("10.69428 mm")))
sketch1.addConstraint(Sketcher.Constraint("DistanceY", -1, 1, 38, 2, Q("12.45589 mm")))
sketch1.addConstraint(Sketcher.Constraint("DistanceY", 40, 1, -1, 1, Q("1.249031 mm")))
sketch1.addConstraint(Sketcher.Constraint("DistanceY", -1, 1, 41, 1, Q("1.249031 mm")))
sketch1.addConstraint(Sketcher.Constraint("DistanceX", 42, 1, -1, 1, Q("12.07386 mm")))
sketch1.addConstraint(Sketcher.Constraint("DistanceY", -1, 1, 43, 1, Q("12.07358 mm")))
sketch1.addConstraint(Sketcher.Constraint("DistanceX", 44, 1, -1, 1, Q("1.249031 mm")))
sketch1.addConstraint(Sketcher.Constraint("DistanceX", -1, 1, 45, 1, Q("1.249031 mm")))
sketch1.addConstraint(Sketcher.Constraint("DistanceX", -1, 1, 46, 1, Q("10.30716 mm")))
sketch1.addConstraint(Sketcher.Constraint("DistanceX", -1, 1, 47, 1, Q("12.07358 mm")))
sketch1.addConstraint(Sketcher.Constraint("DistanceY", -1, 1, 48, 1, Q("1.249031 mm")))
sketch1.addConstraint(Sketcher.Constraint("DistanceY", 50, 1, -1, 1, Q("1.249031 mm")))
sketch1.addConstraint(Sketcher.Constraint("DistanceX", -1, 1, 51, 1, Q("12.07358 mm")))
sketch1.addConstraint(Sketcher.Constraint("DistanceX", -1, 1, 52, 1, Q("10.30716 mm")))
sketch1.addConstraint(Sketcher.Constraint("DistanceX", -1, 1, 53, 1, Q("1.249031 mm")))
sketch1.addConstraint(Sketcher.Constraint("DistanceX", 54, 1, -1, 1, Q("1.249031 mm")))
sketch1.addConstraint(Sketcher.Constraint("DistanceY", 55, 1, -1, 1, Q("12.07358 mm")))
sketch1.addConstraint(Sketcher.Constraint("DistanceX", 56, 1, -1, 1, Q("12.07386 mm")))
sketch1.addConstraint(Sketcher.Constraint("DistanceX", -1, 1, 61, 1, Q("17.48366 mm")))
sketch1.addConstraint(Sketcher.Constraint("Distance", 27, Q("9.642453 mm")))
sketch1.addConstraint(Sketcher.Constraint("Distance", 29, Q("9.642924 mm")))
sketch1.addConstraint(Sketcher.Constraint("Distance", 60, Q("9.642476 mm")))
sketch1.addConstraint(Sketcher.Constraint("DistanceX", 0, 2, -1, 1, Q("19.540065 mm")))
sketch1.addConstraint(Sketcher.Constraint("DistanceX", -1, 1, 5, 2, Q("19.596682 mm")))
sketch1.addConstraint(Sketcher.Constraint("DistanceX", -1, 1, 9, 2, Q("19.603824 mm")))
sketch1.addConstraint(Sketcher.Constraint("DistanceX", -1, 1, 59, 2, Q("12.428348 mm")))
pad1 = body.newObject("PartDesign::Pad", "Pad")
pad1.Profile = sketch1
pad1.Length = 44.45

doc.recompute()
